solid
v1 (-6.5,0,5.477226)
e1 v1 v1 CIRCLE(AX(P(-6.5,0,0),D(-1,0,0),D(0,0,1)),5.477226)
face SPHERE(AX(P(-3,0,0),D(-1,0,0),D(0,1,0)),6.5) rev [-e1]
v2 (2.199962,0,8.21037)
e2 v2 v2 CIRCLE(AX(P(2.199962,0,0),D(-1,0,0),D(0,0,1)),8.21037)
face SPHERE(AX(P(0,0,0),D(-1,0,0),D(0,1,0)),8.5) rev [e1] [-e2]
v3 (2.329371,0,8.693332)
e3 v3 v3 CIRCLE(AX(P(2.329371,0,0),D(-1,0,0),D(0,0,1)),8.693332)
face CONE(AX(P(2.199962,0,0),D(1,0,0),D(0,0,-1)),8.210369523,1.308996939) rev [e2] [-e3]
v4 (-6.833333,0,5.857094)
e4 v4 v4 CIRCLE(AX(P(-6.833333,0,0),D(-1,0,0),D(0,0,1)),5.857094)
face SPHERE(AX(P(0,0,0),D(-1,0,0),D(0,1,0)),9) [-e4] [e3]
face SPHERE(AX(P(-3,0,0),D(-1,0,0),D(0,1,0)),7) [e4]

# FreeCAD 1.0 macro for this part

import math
import FreeCAD as App
import Part
import Sketcher
Q = App.Units.Quantity

doc = App.newDocument("Part")
body = doc.addObject("PartDesign::Body", "Body")

# Sketch on XY plane
sketch1 = doc.addObject("Sketcher::SketchObject", "Sketch")
body.addObject(sketch1)
sketch1.AttachmentSupport = (doc.XY_Plane, [""])
sketch1.MapMode = "FlatFace"
sketch1.addGeometry([
    Part.LineSegment(App.Vector(-10, 0, 0), App.Vector(-9.5, 0, 0)),  # 0
    Part.ArcOfCircle(Part.Circle(App.Vector(-3, 0, 0), App.Vector(0, 0, 1), 6.5), math.radians(122.57897), math.radians(180)),  # 1
    Part.ArcOfCircle(Part.Circle(App.Vector(0, 0, 0), App.Vector(0, 0, 1), 8.5), math.radians(75), math.radians(139.880833)),  # 2
    Part.LineSegment(App.Vector(2.199962, 8.21037, 0), App.Vector(2.329371, 8.693332, 0)),  # 3
    Part.ArcOfCircle(Part.Circle(App.Vector(0, 0, 0), App.Vector(0, 0, 1), 9), math.radians(75), math.radians(139.398939)),  # 4
    Part.ArcOfCircle(Part.Circle(App.Vector(-3, 0, 0), App.Vector(0, 0, 1), 7), math.radians(123.203823), math.radians(180)),  # 5
], False)
sketch1.addConstraint([
    Sketcher.Constraint("Coincident", 0, 2, 1, 2),
    Sketcher.Constraint("Coincident", 1, 1, 2, 2),
    Sketcher.Constraint("Coincident", 2, 1, 3, 1),
    Sketcher.Constraint("Coincident", 3, 2, 4, 1),
    Sketcher.Constraint("Coincident", 4, 2, 5, 1),
    Sketcher.Constraint("Coincident", 5, 2, 0, 1),
    Sketcher.Constraint("Horizontal", 0),
    Sketcher.Constraint("Coincident", 2, 3, -1, 1),
    Sketcher.Constraint("Coincident", 4, 3, -1, 1),
    Sketcher.Constraint("Coincident", 5, 3, 1, 3),
    Sketcher.Constraint("PointOnObject", 1, 3, -1),
    Sketcher.Constraint("PointOnObject", 0, 2, -1),
    Sketcher.Constraint("Radius", 4, Q("9 mm")),
    Sketcher.Constraint("Radius", 5, Q("7 mm")),
    Sketcher.Constraint("Radius", 1, Q("6.5 mm")),
    Sketcher.Constraint("Radius", 2, Q("8.5 mm")),
    Sketcher.Constraint("Angle", 3, Q("75 deg")),
    Sketcher.Constraint("DistanceX", 1, 3, -1, 1, Q("3 mm")),
    Sketcher.Constraint("DistanceX", -1, 1, 2, 1, Q("2.199962 mm")),
])
revolution = doc.addObject("PartDesign::Revolution", "Revolution")
body.addObject(revolution)
revolution.Profile = sketch1
revolution.ReferenceAxis = (sketch1, ["H_Axis"])
revolution.Angle = 360

doc.recompute()
